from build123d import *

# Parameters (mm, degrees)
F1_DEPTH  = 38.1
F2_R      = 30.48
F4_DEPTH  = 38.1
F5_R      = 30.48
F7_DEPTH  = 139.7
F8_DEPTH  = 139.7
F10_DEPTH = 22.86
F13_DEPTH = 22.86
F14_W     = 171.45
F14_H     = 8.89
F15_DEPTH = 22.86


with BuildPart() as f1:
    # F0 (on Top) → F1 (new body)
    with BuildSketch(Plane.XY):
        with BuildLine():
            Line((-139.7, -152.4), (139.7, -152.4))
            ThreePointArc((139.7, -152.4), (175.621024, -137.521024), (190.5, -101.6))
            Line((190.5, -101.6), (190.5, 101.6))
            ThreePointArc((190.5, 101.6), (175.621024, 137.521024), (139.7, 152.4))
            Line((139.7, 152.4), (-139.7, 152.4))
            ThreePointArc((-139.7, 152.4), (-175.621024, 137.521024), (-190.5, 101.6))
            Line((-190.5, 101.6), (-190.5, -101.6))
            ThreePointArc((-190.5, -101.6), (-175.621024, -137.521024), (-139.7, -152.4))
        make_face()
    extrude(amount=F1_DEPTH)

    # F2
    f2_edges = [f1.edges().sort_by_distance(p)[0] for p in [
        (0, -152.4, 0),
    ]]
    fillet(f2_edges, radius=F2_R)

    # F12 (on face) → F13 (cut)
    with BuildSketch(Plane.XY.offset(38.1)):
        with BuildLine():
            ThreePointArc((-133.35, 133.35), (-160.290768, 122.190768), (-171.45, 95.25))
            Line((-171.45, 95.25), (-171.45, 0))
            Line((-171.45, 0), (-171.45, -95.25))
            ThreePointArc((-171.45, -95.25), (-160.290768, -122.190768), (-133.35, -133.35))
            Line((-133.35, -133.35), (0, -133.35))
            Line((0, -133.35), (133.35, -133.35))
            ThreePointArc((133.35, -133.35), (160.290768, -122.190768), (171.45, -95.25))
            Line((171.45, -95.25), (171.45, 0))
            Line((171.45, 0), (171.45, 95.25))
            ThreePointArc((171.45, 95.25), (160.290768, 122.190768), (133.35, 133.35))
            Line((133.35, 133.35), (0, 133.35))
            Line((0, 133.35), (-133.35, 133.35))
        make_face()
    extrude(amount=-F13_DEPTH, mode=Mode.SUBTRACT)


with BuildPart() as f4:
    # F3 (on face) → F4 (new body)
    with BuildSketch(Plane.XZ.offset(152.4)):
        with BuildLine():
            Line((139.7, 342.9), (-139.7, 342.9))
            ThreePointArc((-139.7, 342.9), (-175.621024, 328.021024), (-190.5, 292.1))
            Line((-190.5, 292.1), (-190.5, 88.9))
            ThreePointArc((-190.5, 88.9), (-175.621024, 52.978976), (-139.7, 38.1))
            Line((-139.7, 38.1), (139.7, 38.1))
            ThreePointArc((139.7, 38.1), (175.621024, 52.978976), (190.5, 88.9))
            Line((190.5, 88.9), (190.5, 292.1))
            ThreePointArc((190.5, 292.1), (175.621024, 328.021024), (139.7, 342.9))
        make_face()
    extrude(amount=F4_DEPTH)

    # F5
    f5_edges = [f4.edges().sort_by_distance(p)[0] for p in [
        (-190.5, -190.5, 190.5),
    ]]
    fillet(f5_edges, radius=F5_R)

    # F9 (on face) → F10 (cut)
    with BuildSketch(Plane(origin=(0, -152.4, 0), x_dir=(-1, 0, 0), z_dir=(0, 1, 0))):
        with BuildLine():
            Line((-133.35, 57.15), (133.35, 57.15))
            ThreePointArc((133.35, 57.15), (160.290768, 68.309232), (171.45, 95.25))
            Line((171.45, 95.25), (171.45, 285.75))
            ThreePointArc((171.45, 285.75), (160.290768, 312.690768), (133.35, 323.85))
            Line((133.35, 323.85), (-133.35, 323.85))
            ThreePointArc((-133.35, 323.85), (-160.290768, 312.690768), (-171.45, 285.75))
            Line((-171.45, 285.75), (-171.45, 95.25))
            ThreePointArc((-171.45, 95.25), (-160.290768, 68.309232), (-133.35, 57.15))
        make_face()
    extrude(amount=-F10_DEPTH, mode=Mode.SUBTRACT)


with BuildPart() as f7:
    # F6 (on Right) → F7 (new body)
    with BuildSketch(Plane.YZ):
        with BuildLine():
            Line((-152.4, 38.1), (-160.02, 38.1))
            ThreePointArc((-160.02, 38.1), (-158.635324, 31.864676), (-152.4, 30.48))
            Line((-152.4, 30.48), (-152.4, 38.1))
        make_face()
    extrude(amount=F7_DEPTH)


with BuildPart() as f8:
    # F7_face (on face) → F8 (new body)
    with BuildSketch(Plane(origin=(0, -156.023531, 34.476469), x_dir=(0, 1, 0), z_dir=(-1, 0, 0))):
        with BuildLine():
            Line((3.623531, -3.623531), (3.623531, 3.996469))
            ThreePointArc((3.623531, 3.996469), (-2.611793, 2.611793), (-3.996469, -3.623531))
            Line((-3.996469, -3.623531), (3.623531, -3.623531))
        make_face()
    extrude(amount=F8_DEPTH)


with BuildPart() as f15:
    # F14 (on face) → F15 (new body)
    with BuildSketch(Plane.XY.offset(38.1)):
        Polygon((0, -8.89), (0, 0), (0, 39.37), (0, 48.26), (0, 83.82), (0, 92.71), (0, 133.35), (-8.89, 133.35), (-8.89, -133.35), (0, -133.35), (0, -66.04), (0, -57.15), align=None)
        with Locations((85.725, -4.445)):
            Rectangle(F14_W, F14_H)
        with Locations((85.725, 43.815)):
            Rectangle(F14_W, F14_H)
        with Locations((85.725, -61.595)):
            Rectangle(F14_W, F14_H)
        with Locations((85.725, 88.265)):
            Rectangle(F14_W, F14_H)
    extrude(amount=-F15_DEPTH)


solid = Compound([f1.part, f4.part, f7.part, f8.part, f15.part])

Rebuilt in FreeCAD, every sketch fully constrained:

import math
import FreeCAD as App
import Part
import Sketcher
from FreeCAD import Vector
Q = App.Units.Quantity


def edges_at(feature, points):
    """Names of the edges that pass closest to the given points."""
    edges = feature.Shape.Edges
    near = lambda p: min(range(len(edges)), key=lambda i: edges[i].distToShape(Part.Vertex(*p))[0])
    return sorted({f"Edge{near(p) + 1}" for p in points})


def add_polygon(sketch, points):
    """Adds a closed chain of lines whose ends are joined by coincident constraints."""
    first, n = sketch.GeometryCount, len(points)
    for a, b in zip(points, points[1:] + points[:1]):
        sketch.addGeometry(Part.LineSegment(App.Vector(*a, 0), App.Vector(*b, 0)), False)
    for i in range(n):
        sketch.addConstraint(Sketcher.Constraint("Coincident", first + i, 2, first + (i + 1) % n, 1))

doc = App.newDocument("Part")
body = doc.addObject("PartDesign::Body", "Body")

# Sketch on XY plane
sketch1 = body.newObject("Sketcher::SketchObject", "Sketch")
sketch1.AttachmentSupport = (doc.getObject("XY_Plane"), [""])
sketch1.MapMode = "FlatFace"
sketch1.addGeometry(Part.LineSegment(Vector(-140, -152, 0), Vector(140, -152, 0)), False)
sketch1.addGeometry(Part.ArcOfCircle(Part.Circle(Vector(140, -102, 0), Vector(0, 0, 1), 51), math.radians(-90), math.radians(0)), False)
sketch1.addGeometry(Part.LineSegment(Vector(190, -102, 0), Vector(190, 102, 0)), False)
sketch1.addGeometry(Part.ArcOfCircle(Part.Circle(Vector(140, 102, 0), Vector(0, 0, 1), 51), math.radians(0), math.radians(90)), False)
sketch1.addGeometry(Part.LineSegment(Vector(140, 152, 0), Vector(-140, 152, 0)), False)
sketch1.addGeometry(Part.ArcOfCircle(Part.Circle(Vector(-140, 102, 0), Vector(0, 0, 1), 51), math.radians(90), math.radians(180)), False)
sketch1.addGeometry(Part.LineSegment(Vector(-190, 102, 0), Vector(-190, -102, 0)), False)
sketch1.addGeometry(Part.ArcOfCircle(Part.Circle(Vector(-140, -102, 0), Vector(0, 0, 1), 51), math.radians(-180), math.radians(-90)), False)
sketch1.addConstraint(Sketcher.Constraint("Tangent", 0, 2, 1, 1))
sketch1.addConstraint(Sketcher.Constraint("Tangent", 1, 2, 2, 1))
sketch1.addConstraint(Sketcher.Constraint("Tangent", 2, 2, 3, 1))
sketch1.addConstraint(Sketcher.Constraint("Tangent", 3, 2, 4, 1))
sketch1.addConstraint(Sketcher.Constraint("Tangent", 4, 2, 5, 1))
sketch1.addConstraint(Sketcher.Constraint("Tangent", 5, 2, 6, 1))
sketch1.addConstraint(Sketcher.Constraint("Tangent", 6, 2, 7, 1))
sketch1.addConstraint(Sketcher.Constraint("Tangent", 7, 2, 0, 1))
sketch1.addConstraint(Sketcher.Constraint("Horizontal", 0))
sketch1.addConstraint(Sketcher.Constraint("Vertical", 2))
sketch1.addConstraint(Sketcher.Constraint("Horizontal", 4))
sketch1.addConstraint(Sketcher.Constraint("Vertical", 6))
sketch1.addConstraint(Sketcher.Constraint("Equal", 1, 3))
sketch1.addConstraint(Sketcher.Constraint("Equal", 3, 5))
sketch1.addConstraint(Sketcher.Constraint("Equal", 5, 7))
sketch1.addConstraint(Sketcher.Constraint("Symmetric", 1, 3, 5, 3, -1, 1))
sketch1.addConstraint(Sketcher.Constraint("Radius", 1, Q("2.0000001 in")))
sketch1.addConstraint(Sketcher.Constraint("DistanceX", 0, 1, 0, 2, Q("11 in")))
sketch1.addConstraint(Sketcher.Constraint("DistanceY", 2, 1, 2, 2, Q("8 in")))
pad1 = body.newObject("PartDesign::Pad", "Pad")
pad1.Profile = sketch1
pad1.Length = Q("1.5 in")
doc.recompute()

fillet = body.newObject("PartDesign::Fillet", "Fillet")
fillet.Base = (pad1, edges_at(pad1, [(0, -152.4, 0)]))
fillet.Radius = Q("1.2 in")

# Sketch on XY plane
sketch2 = body.newObject("Sketcher::SketchObject", "Sketch001")
sketch2.AttachmentSupport = (doc.getObject("XY_Plane"), [""])
sketch2.MapMode = "FlatFace"
sketch2.AttachmentOffset = App.Placement(Vector(0, 0, 1.5 * 25.4), App.Rotation())
sketch2.addGeometry(Part.ArcOfCircle(Part.Circle(Vector(-133, 95, 0), Vector(0, 0, 1), 38), math.radians(90), math.radians(180)), False)
sketch2.addGeometry(Part.LineSegment(Vector(-171, 95, 0), Vector(-171, -95, 0)), False)
sketch2.addGeometry(Part.ArcOfCircle(Part.Circle(Vector(-133, -95, 0), Vector(0, 0, 1), 38), math.radians(-180), math.radians(-90)), False)
sketch2.addGeometry(Part.LineSegment(Vector(-133, -133, 0), Vector(133, -133, 0)), False)
sketch2.addGeometry(Part.ArcOfCircle(Part.Circle(Vector(133, -95, 0), Vector(0, 0, 1), 38), math.radians(-90), math.radians(0)), False)
sketch2.addGeometry(Part.LineSegment(Vector(171, -95, 0), Vector(171, 95, 0)), False)
sketch2.addGeometry(Part.ArcOfCircle(Part.Circle(Vector(133, 95, 0), Vector(0, 0, 1), 38), math.radians(0), math.radians(90)), False)
sketch2.addGeometry(Part.LineSegment(Vector(133, 133, 0), Vector(-133, 133, 0)), False)
sketch2.addConstraint(Sketcher.Constraint("Tangent", 0, 2, 1, 1))
sketch2.addConstraint(Sketcher.Constraint("Tangent", 1, 2, 2, 1))
sketch2.addConstraint(Sketcher.Constraint("Tangent", 2, 2, 3, 1))
sketch2.addConstraint(Sketcher.Constraint("Tangent", 3, 2, 4, 1))
sketch2.addConstraint(Sketcher.Constraint("Tangent", 4, 2, 5, 1))
sketch2.addConstraint(Sketcher.Constraint("Tangent", 5, 2, 6, 1))
sketch2.addConstraint(Sketcher.Constraint("Tangent", 6, 2, 7, 1))
sketch2.addConstraint(Sketcher.Constraint("Tangent", 7, 2, 0, 1))
sketch2.addConstraint(Sketcher.Constraint("Vertical", 1))
sketch2.addConstraint(Sketcher.Constraint("Horizontal", 3))
sketch2.addConstraint(Sketcher.Constraint("Vertical", 5))
sketch2.addConstraint(Sketcher.Constraint("Horizontal", 7))
sketch2.addConstraint(Sketcher.Constraint("Equal", 0, 2))
sketch2.addConstraint(Sketcher.Constraint("Equal", 2, 4))
sketch2.addConstraint(Sketcher.Constraint("Equal", 4, 6))
sketch2.addConstraint(Sketcher.Constraint("Symmetric", 0, 3, 4, 3, -1, 1))
sketch2.addConstraint(Sketcher.Constraint("Radius", 0, Q("1.5 in")))
sketch2.addConstraint(Sketcher.Constraint("DistanceX", 3, 1, 3, 2, Q("10.5 in")))
sketch2.addConstraint(Sketcher.Constraint("DistanceY", 1, 2, 1, 1, Q("7.5 in")))
pocket1 = body.newObject("PartDesign::Pocket", "Pocket")
pocket1.Profile = sketch2
pocket1.Length = Q("0.9 in")
body2 = doc.addObject("PartDesign::Body", "Body001")

# Sketch on XZ plane
sketch3 = body2.newObject("Sketcher::SketchObject", "Sketch002")
sketch3.AttachmentSupport = (doc.getObject("XZ_Plane001"), [""])
sketch3.MapMode = "FlatFace"
sketch3.AttachmentOffset = App.Placement(Vector(0, 0, 6 * 25.4), App.Rotation())
sketch3.addGeometry(Part.LineSegment(Vector(140, 343, 0), Vector(-140, 343, 0)), False)
sketch3.addGeometry(Part.ArcOfCircle(Part.Circle(Vector(-140, 292, 0), Vector(0, 0, 1), 51), math.radians(90), math.radians(180)), False)
sketch3.addGeometry(Part.LineSegment(Vector(-190, 292, 0), Vector(-190, 89, 0)), False)
sketch3.addGeometry(Part.ArcOfCircle(Part.Circle(Vector(-140, 89, 0), Vector(0, 0, 1), 51), math.radians(-180), math.radians(-90)), False)
sketch3.addGeometry(Part.LineSegment(Vector(-140, 38, 0), Vector(140, 38, 0)), False)
sketch3.addGeometry(Part.ArcOfCircle(Part.Circle(Vector(140, 89, 0), Vector(0, 0, 1), 51), math.radians(-90), math.radians(0)), False)
sketch3.addGeometry(Part.LineSegment(Vector(190, 89, 0), Vector(190, 292, 0)), False)
sketch3.addGeometry(Part.ArcOfCircle(Part.Circle(Vector(140, 292, 0), Vector(0, 0, 1), 51), math.radians(0), math.radians(90)), False)
sketch3.addConstraint(Sketcher.Constraint("Tangent", 0, 2, 1, 1))
sketch3.addConstraint(Sketcher.Constraint("Tangent", 1, 2, 2, 1))
sketch3.addConstraint(Sketcher.Constraint("Tangent", 2, 2, 3, 1))
sketch3.addConstraint(Sketcher.Constraint("Tangent", 3, 2, 4, 1))
sketch3.addConstraint(Sketcher.Constraint("Tangent", 4, 2, 5, 1))
sketch3.addConstraint(Sketcher.Constraint("Tangent", 5, 2, 6, 1))
sketch3.addConstraint(Sketcher.Constraint("Tangent", 6, 2, 7, 1))
sketch3.addConstraint(Sketcher.Constraint("Tangent", 7, 2, 0, 1))
sketch3.addConstraint(Sketcher.Constraint("Horizontal", 0))
sketch3.addConstraint(Sketcher.Constraint("Vertical", 2))
sketch3.addConstraint(Sketcher.Constraint("Horizontal", 4))
sketch3.addConstraint(Sketcher.Constraint("Vertical", 6))
sketch3.addConstraint(Sketcher.Constraint("Equal", 1, 3))
sketch3.addConstraint(Sketcher.Constraint("Equal", 3, 5))
sketch3.addConstraint(Sketcher.Constraint("Equal", 5, 7))
sketch3.addConstraint(Sketcher.Constraint("Radius", 1, Q("2.0000001 in")))
sketch3.addConstraint(Sketcher.Constraint("DistanceX", 0, 2, 0, 1, Q("11 in")))
sketch3.addConstraint(Sketcher.Constraint("DistanceY", 2, 2, 2, 1, Q("8 in")))
sketch3.addConstraint(Sketcher.Constraint("DistanceX", 1, 3, -1, 1, Q("5.4999999 in")))
sketch3.addConstraint(Sketcher.Constraint("DistanceY", -1, 1, 1, 3, Q("11.4999999 in")))
pad2 = body2.newObject("PartDesign::Pad", "Pad001")
pad2.Profile = sketch3
pad2.Length = Q("1.5 in")
doc.recompute()

fillet2 = body2.newObject("PartDesign::Fillet", "Fillet001")
fillet2.Base = (pad2, edges_at(pad2, [(-190.5, -190.5, 190.5)]))
fillet2.Radius = Q("1.2 in")

# Sketch on XZ plane
sketch4 = body2.newObject("Sketcher::SketchObject", "Sketch003")
sketch4.AttachmentSupport = (doc.getObject("XZ_Plane001"), [""])
sketch4.MapMode = "FlatFace"
sketch4.AttachmentOffset = App.Placement(Vector(0, 0, 6 * 25.4), App.Rotation())
sketch4.addGeometry(Part.LineSegment(Vector(133, 57, 0), Vector(-133, 57, 0)), False)
sketch4.addGeometry(Part.ArcOfCircle(Part.Circle(Vector(-133, 95, 0), Vector(0, 0, 1), 38), math.radians(-180), math.radians(-90)), False)
sketch4.addGeometry(Part.LineSegment(Vector(-171, 95, 0), Vector(-171, 286, 0)), False)
sketch4.addGeometry(Part.ArcOfCircle(Part.Circle(Vector(-133, 286, 0), Vector(0, 0, 1), 38), math.radians(90), math.radians(180)), False)
sketch4.addGeometry(Part.LineSegment(Vector(-133, 324, 0), Vector(133, 324, 0)), False)
sketch4.addGeometry(Part.ArcOfCircle(Part.Circle(Vector(133, 286, 0), Vector(0, 0, 1), 38), math.radians(0), math.radians(90)), False)
sketch4.addGeometry(Part.LineSegment(Vector(171, 286, 0), Vector(171, 95, 0)), False)
sketch4.addGeometry(Part.ArcOfCircle(Part.Circle(Vector(133, 95, 0), Vector(0, 0, 1), 38), math.radians(-90), math.radians(0)), False)
sketch4.addConstraint(Sketcher.Constraint("Tangent", 0, 2, 1, 2))
sketch4.addConstraint(Sketcher.Constraint("Tangent", 1, 1, 2, 1))
sketch4.addConstraint(Sketcher.Constraint("Tangent", 2, 2, 3, 2))
sketch4.addConstraint(Sketcher.Constraint("Tangent", 3, 1, 4, 1))
sketch4.addConstraint(Sketcher.Constraint("Tangent", 4, 2, 5, 2))
sketch4.addConstraint(Sketcher.Constraint("Tangent", 5, 1, 6, 1))
sketch4.addConstraint(Sketcher.Constraint("Tangent", 6, 2, 7, 2))
sketch4.addConstraint(Sketcher.Constraint("Tangent", 7, 1, 0, 1))
sketch4.addConstraint(Sketcher.Constraint("Horizontal", 0))
sketch4.addConstraint(Sketcher.Constraint("Vertical", 2))
sketch4.addConstraint(Sketcher.Constraint("Horizontal", 4))
sketch4.addConstraint(Sketcher.Constraint("Vertical", 6))
sketch4.addConstraint(Sketcher.Constraint("Equal", 1, 3))
sketch4.addConstraint(Sketcher.Constraint("Equal", 3, 5))
sketch4.addConstraint(Sketcher.Constraint("Equal", 5, 7))
sketch4.addConstraint(Sketcher.Constraint("Radius", 1, Q("1.5 in")))
sketch4.addConstraint(Sketcher.Constraint("DistanceX", 0, 2, 0, 1, Q("10.5 in")))
sketch4.addConstraint(Sketcher.Constraint("DistanceY", 2, 1, 2, 2, Q("7.5 in")))
sketch4.addConstraint(Sketcher.Constraint("DistanceX", 1, 3, -1, 1, Q("5.25 in")))
sketch4.addConstraint(Sketcher.Constraint("DistanceY", -1, 1, 1, 3, Q("3.75 in")))
pocket2 = body2.newObject("PartDesign::Pocket", "Pocket001")
pocket2.Profile = sketch4
pocket2.Length = Q("0.9 in")
pocket2.Reversed = True
body3 = doc.addObject("PartDesign::Body", "Body002")

# Sketch on YZ plane
sketch5 = body3.newObject("Sketcher::SketchObject", "Sketch004")
sketch5.AttachmentSupport = (doc.getObject("YZ_Plane002"), [""])
sketch5.MapMode = "FlatFace"
sketch5.addGeometry(Part.LineSegment(Vector(-152, 38, 0), Vector(-160, 38, 0)), False)
sketch5.addGeometry(Part.ArcOfCircle(Part.Circle(Vector(-154, 36, 0), Vector(0, 0, 1), 6), math.radians(160), math.radians(290)), False)
sketch5.addGeometry(Part.LineSegment(Vector(-152, 30, 0), Vector(-152, 38, 0)), False)
sketch5.addConstraint(Sketcher.Constraint("Coincident", 0, 2, 1, 1))
sketch5.addConstraint(Sketcher.Constraint("Coincident", 1, 2, 2, 1))
sketch5.addConstraint(Sketcher.Constraint("Coincident", 2, 2, 0, 1))
sketch5.addConstraint(Sketcher.Constraint("Horizontal", 0))
sketch5.addConstraint(Sketcher.Constraint("Vertical", 2))
sketch5.addConstraint(Sketcher.Constraint("Equal", 0, 2))
sketch5.addConstraint(Sketcher.Constraint("DistanceX", 0, 2, 0, 1, Q("0.3 in")))
sketch5.addConstraint(Sketcher.Constraint("DistanceX", 1, 2, -1, 1, Q("6 in")))
sketch5.addConstraint(Sketcher.Constraint("DistanceY", -1, 1, 0, 2, Q("1.5 in")))
sketch5.addConstraint(Sketcher.Constraint("Radius", 1, Q("5.947153 mm")))
pad3 = body3.newObject("PartDesign::Pad", "Pad002")
pad3.Profile = sketch5
pad3.Length = Q("5.5 in")
body4 = doc.addObject("PartDesign::Body", "Body003")

# Sketch on YZ plane
sketch6 = body4.newObject("Sketcher::SketchObject", "Sketch005")
sketch6.AttachmentSupport = (doc.getObject("YZ_Plane003"), [""])
sketch6.MapMode = "FlatFace"
sketch6.addGeometry(Part.LineSegment(Vector(-152, 38, 0), Vector(-152, 30, 0)), False)
sketch6.addGeometry(Part.ArcOfCircle(Part.Circle(Vector(-154, 36, 0), Vector(0, 0, 1), 6), math.radians(160), math.radians(290)), False)
sketch6.addGeometry(Part.LineSegment(Vector(-160, 38, 0), Vector(-152, 38, 0)), False)
sketch6.addConstraint(Sketcher.Constraint("Coincident", 0, 2, 1, 2))
sketch6.addConstraint(Sketcher.Constraint("Coincident", 1, 1, 2, 1))
sketch6.addConstraint(Sketcher.Constraint("Coincident", 2, 2, 0, 1))
sketch6.addConstraint(Sketcher.Constraint("Vertical", 0))
sketch6.addConstraint(Sketcher.Constraint("Horizontal", 2))
sketch6.addConstraint(Sketcher.Constraint("Equal", 2, 0))
sketch6.addConstraint(Sketcher.Constraint("DistanceX", 2, 1, 2, 2, Q("0.3 in")))
sketch6.addConstraint(Sketcher.Constraint("DistanceX", 0, 2, -1, 1, Q("6 in")))
sketch6.addConstraint(Sketcher.Constraint("DistanceY", -1, 1, 0, 2, Q("1.2 in")))
sketch6.addConstraint(Sketcher.Constraint("Radius", 1, Q("5.947153 mm")))
pad4 = body4.newObject("PartDesign::Pad", "Pad003")
pad4.Profile = sketch6
pad4.Length = Q("5.5 in")
pad4.Reversed = True
body5 = doc.addObject("PartDesign::Body", "Body004")

# Sketch on XY plane
sketch7 = body5.newObject("Sketcher::SketchObject", "Sketch006")
sketch7.AttachmentSupport = (doc.getObject("XY_Plane004"), [""])
sketch7.MapMode = "FlatFace"
sketch7.AttachmentOffset = App.Placement(Vector(0, 0, 1.5 * 25.4), App.Rotation())
add_polygon(sketch7, [(0, 133), (-9, 133), (-9, -133), (0, -133), (0, -66), (171, -66), (171, -57), (0, -57), (0, -9), (171, -9), (171, 0), (0, 0), (0, 39), (171, 39), (171, 48), (0, 48), (0, 84), (171, 84), (171, 93), (0, 93)])  # lines 0-19
sketch7.addConstraint(Sketcher.Constraint("Horizontal", 0))
sketch7.addConstraint(Sketcher.Constraint("Vertical", 1))
sketch7.addConstraint(Sketcher.Constraint("Horizontal", 2))
sketch7.addConstraint(Sketcher.Constraint("Vertical", 3))
sketch7.addConstraint(Sketcher.Constraint("Horizontal", 4))
sketch7.addConstraint(Sketcher.Constraint("Vertical", 5))
sketch7.addConstraint(Sketcher.Constraint("Horizontal", 6))
sketch7.addConstraint(Sketcher.Constraint("Vertical", 7))
sketch7.addConstraint(Sketcher.Constraint("Horizontal", 8))
sketch7.addConstraint(Sketcher.Constraint("Vertical", 9))
sketch7.addConstraint(Sketcher.Constraint("Horizontal", 10))
sketch7.addConstraint(Sketcher.Constraint("Vertical", 11))
sketch7.addConstraint(Sketcher.Constraint("Horizontal", 12))
sketch7.addConstraint(Sketcher.Constraint("Vertical", 13))
sketch7.addConstraint(Sketcher.Constraint("Horizontal", 14))
sketch7.addConstraint(Sketcher.Constraint("Vertical", 15))
sketch7.addConstraint(Sketcher.Constraint("Horizontal", 16))
sketch7.addConstraint(Sketcher.Constraint("Vertical", 17))
sketch7.addConstraint(Sketcher.Constraint("Horizontal", 18))
sketch7.addConstraint(Sketcher.Constraint("Vertical", 19))
sketch7.addConstraint(Sketcher.Constraint("Coincident", 10, 2, -1, 1))
sketch7.addConstraint(Sketcher.Constraint("Symmetric", 2, 2, 19, 2, -1, 1))
sketch7.addConstraint(Sketcher.Constraint("PointOnObject", 2, 2, -2))
sketch7.addConstraint(Sketcher.Constraint("PointOnObject", 6, 2, -2))
sketch7.addConstraint(Sketcher.Constraint("PointOnObject", 14, 2, -2))
sketch7.addConstraint(Sketcher.Constraint("Vertical", 5, 2, 8, 2))
sketch7.addConstraint(Sketcher.Constraint("Vertical", 9, 2, 12, 2))
sketch7.addConstraint(Sketcher.Constraint("Vertical", 13, 2, 16, 2))
sketch7.addConstraint(Sketcher.Constraint("Equal", 2, 5))
sketch7.addConstraint(Sketcher.Constraint("Equal", 5, 9))
sketch7.addConstraint(Sketcher.Constraint("Equal", 9, 13))
sketch7.addConstraint(Sketcher.Constraint("Equal", 13, 17))
sketch7.addConstraint(Sketcher.Constraint("DistanceY", 1, 2, 1, 1, Q("10.5 in")))
sketch7.addConstraint(Sketcher.Constraint("DistanceY", 7, 1, 7, 2, Q("1.9 in")))
sketch7.addConstraint(Sketcher.Constraint("DistanceY", 15, 1, 15, 2, Q("1.4 in")))
sketch7.addConstraint(Sketcher.Constraint("DistanceY", 19, 1, 19, 2, Q("1.6 in")))
sketch7.addConstraint(Sketcher.Constraint("DistanceY", 2, 2, 5, 2, Q("3 in")))
sketch7.addConstraint(Sketcher.Constraint("DistanceX", 4, 1, 4, 2, Q("6.75 in")))
pad5 = body5.newObject("PartDesign::Pad", "Pad004")
pad5.Profile = sketch7
pad5.Length = Q("0.9 in")
pad5.Reversed = True

doc.recompute()
